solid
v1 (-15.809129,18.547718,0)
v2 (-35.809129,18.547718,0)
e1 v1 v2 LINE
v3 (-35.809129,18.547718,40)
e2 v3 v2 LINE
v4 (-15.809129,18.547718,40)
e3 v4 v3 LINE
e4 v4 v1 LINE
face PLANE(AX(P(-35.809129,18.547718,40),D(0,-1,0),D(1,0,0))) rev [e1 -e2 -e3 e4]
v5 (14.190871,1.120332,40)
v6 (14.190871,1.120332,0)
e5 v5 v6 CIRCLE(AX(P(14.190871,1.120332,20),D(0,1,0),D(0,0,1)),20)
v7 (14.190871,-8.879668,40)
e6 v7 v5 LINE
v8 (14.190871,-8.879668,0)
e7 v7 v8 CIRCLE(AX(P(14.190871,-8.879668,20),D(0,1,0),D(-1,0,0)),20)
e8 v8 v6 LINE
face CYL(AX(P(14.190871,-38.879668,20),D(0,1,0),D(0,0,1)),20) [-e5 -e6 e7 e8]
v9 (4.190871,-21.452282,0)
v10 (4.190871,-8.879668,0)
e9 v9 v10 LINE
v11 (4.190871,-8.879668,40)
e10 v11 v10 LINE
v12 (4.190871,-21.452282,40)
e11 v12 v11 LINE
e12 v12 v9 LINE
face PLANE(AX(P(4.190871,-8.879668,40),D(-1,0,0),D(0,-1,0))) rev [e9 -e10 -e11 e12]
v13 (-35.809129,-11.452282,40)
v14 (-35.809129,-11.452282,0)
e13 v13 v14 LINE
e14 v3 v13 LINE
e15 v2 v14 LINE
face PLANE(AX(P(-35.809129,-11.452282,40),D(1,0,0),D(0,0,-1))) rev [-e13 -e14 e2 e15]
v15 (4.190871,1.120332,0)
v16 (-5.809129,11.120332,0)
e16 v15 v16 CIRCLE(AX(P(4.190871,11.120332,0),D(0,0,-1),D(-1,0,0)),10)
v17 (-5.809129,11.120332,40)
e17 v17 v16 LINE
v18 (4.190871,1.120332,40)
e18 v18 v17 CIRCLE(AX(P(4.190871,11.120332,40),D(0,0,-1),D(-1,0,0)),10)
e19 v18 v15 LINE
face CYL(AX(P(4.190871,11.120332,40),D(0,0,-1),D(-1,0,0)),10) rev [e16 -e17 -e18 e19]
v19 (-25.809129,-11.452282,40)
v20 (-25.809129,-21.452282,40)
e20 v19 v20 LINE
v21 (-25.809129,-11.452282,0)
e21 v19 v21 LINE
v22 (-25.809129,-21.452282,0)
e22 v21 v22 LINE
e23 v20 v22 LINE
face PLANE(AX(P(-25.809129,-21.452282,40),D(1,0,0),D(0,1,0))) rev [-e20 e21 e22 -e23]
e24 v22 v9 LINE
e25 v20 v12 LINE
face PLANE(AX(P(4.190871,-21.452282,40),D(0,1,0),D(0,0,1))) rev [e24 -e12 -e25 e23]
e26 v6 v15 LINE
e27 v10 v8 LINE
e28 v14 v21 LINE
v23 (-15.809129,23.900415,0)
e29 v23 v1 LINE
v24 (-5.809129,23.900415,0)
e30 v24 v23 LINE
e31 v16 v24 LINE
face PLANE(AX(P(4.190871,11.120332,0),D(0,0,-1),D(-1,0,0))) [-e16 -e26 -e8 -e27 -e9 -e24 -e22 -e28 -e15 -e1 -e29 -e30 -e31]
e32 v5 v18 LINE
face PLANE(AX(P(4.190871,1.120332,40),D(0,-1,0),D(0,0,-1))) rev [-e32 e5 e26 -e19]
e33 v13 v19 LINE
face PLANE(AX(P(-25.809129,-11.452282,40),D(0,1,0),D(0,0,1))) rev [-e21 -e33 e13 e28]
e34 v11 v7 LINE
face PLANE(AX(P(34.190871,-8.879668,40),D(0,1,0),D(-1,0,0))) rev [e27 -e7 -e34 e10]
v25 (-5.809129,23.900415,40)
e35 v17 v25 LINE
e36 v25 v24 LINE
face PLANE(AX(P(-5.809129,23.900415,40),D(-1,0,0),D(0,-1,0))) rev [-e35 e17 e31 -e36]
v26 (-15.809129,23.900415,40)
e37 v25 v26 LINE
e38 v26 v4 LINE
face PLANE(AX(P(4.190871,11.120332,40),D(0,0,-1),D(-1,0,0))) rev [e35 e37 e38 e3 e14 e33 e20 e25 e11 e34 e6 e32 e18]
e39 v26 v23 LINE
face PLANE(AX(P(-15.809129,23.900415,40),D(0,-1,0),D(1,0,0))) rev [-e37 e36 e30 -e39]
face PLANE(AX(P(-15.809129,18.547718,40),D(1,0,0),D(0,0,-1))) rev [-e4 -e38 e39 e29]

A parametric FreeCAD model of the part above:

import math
import FreeCAD as App
import Part
import Sketcher

V = App.Vector


def add_polygon(sketch, points):
    """Adds a closed chain of lines whose ends are joined by coincident constraints."""
    first, n = sketch.GeometryCount, len(points)
    for a, b in zip(points, points[1:] + points[:1]):
        sketch.addGeometry(Part.LineSegment(App.Vector(*a, 0), App.Vector(*b, 0)), False)
    for i in range(n):
        sketch.addConstraint(Sketcher.Constraint("Coincident", first + i, 2, first + (i + 1) % n, 1))

doc = App.newDocument("Part")
body = doc.addObject("PartDesign::Body", "Body")

# Sketch on XY plane
sketch1 = body.newObject("Sketcher::SketchObject", "Sketch")
sketch1.AttachmentSupport = (doc.getObject("XY_Plane"), [""])
sketch1.MapMode = "FlatFace"
sketch1.addGeometry([
    Part.LineSegment(V(-6, 24, 0), V(-16, 24, 0)),  # 0
    Part.LineSegment(V(-16, 24, 0), V(-16, 19, 0)),  # 1
    Part.LineSegment(V(-16, 19, 0), V(-36, 19, 0)),  # 2
    Part.LineSegment(V(-36, 19, 0), V(-36, -11, 0)),  # 3
    Part.LineSegment(V(-36, -11, 0), V(-26, -11, 0)),  # 4
    Part.LineSegment(V(-26, -11, 0), V(-26, -21, 0)),  # 5
    Part.LineSegment(V(-26, -21, 0), V(4, -21, 0)),  # 6
    Part.LineSegment(V(4, -21, 0), V(4, -9, 0)),  # 7
    Part.LineSegment(V(4, -9, 0), V(34, -9, 0)),  # 8
    Part.LineSegment(V(34, -9, 0), V(34, 1, 0)),  # 9
    Part.LineSegment(V(34, 1, 0), V(4, 1, 0)),  # 10
    Part.ArcOfCircle(Part.Circle(V(4, 11, 0), V(0, 0, 1), 10), math.radians(180), math.radians(270)),  # 11
    Part.LineSegment(V(-6, 11, 0), V(-6, 24, 0)),  # 12
], False)
sketch1.addConstraint([
    Sketcher.Constraint("Coincident", 0, 2, 1, 1),
    Sketcher.Constraint("Coincident", 1, 2, 2, 1),
    Sketcher.Constraint("Coincident", 2, 2, 3, 1),
    Sketcher.Constraint("Coincident", 3, 2, 4, 1),
    Sketcher.Constraint("Coincident", 4, 2, 5, 1),
    Sketcher.Constraint("Coincident", 5, 2, 6, 1),
    Sketcher.Constraint("Coincident", 6, 2, 7, 1),
    Sketcher.Constraint("Coincident", 7, 2, 8, 1),
    Sketcher.Constraint("Coincident", 8, 2, 9, 1),
    Sketcher.Constraint("Coincident", 9, 2, 10, 1),
    Sketcher.Constraint("Tangent", 10, 2, 11, 2),
    Sketcher.Constraint("Tangent", 11, 1, 12, 1),
    Sketcher.Constraint("Coincident", 12, 2, 0, 1),
    Sketcher.Constraint("Horizontal", 0),
    Sketcher.Constraint("Vertical", 1),
    Sketcher.Constraint("Horizontal", 2),
    Sketcher.Constraint("Vertical", 3),
    Sketcher.Constraint("Horizontal", 4),
    Sketcher.Constraint("Vertical", 5),
    Sketcher.Constraint("Horizontal", 6),
    Sketcher.Constraint("Vertical", 7),
    Sketcher.Constraint("Horizontal", 8),
    Sketcher.Constraint("Vertical", 9),
    Sketcher.Constraint("Horizontal", 10),
    Sketcher.Constraint("Vertical", 12),
    Sketcher.Constraint("Vertical", 11, 3, 6, 2),
    Sketcher.Constraint("Equal", 0, 4),
    Sketcher.Constraint("Equal", 6, 8),
    Sketcher.Constraint("Equal", 10, 3),
    Sketcher.Constraint("Equal", 4, 5),
    Sketcher.Constraint("Equal", 5, 9),
    Sketcher.Constraint("Radius", 11, 10.0),
    Sketcher.Constraint("DistanceX", 0, 2, 0, 1, 10.0),
    Sketcher.Constraint("DistanceX", 2, 2, 2, 1, 20.0),
    Sketcher.Constraint("DistanceY", 1, 2, 1, 1, 5.352697),
    Sketcher.Constraint("DistanceY", 7, 1, 7, 2, 12.572614),
    Sketcher.Constraint("DistanceX", -1, 1, 11, 3, 4.190871),
    Sketcher.Constraint("DistanceY", -1, 1, 11, 3, 11.120332),
])
pad1 = body.newObject("PartDesign::Pad", "Pad")
pad1.Profile = sketch1
pad1.Length = 40

# Sketch on XZ plane
sketch2 = body.newObject("Sketcher::SketchObject", "Sketch001")
sketch2.AttachmentSupport = (doc.getObject("XZ_Plane"), [""])
sketch2.MapMode = "FlatFace"
sketch2.AttachmentOffset = App.Placement(V(0, 0, -1.120332), App.Rotation())
add_polygon(sketch2, [(-46, -10), (-46, 50), (44, 50), (44, -10)])  # lines 0-3
sketch2.addGeometry(Part.LineSegment(V(-36, 0, 0), V(14, 0, 0)), False)  # 4
sketch2.addGeometry(Part.ArcOfCircle(Part.Circle(V(14, 20, 0), V(0, 0, 1), 20), math.radians(-90), math.radians(90)), False)  # 5
sketch2.addGeometry(Part.LineSegment(V(14, 40, 0), V(-36, 40, 0)), False)  # 6
sketch2.addGeometry(Part.LineSegment(V(-36, 40, 0), V(-36, 0, 0)), False)  # 7
sketch2.addConstraint([
    Sketcher.Constraint("Tangent", 4, 2, 5, 1),
    Sketcher.Constraint("Tangent", 5, 2, 6, 1),
    Sketcher.Constraint("Coincident", 6, 2, 7, 1),
    Sketcher.Constraint("Coincident", 7, 2, 4, 1),
    Sketcher.Constraint("Vertical", 0),
    Sketcher.Constraint("Horizontal", 1),
    Sketcher.Constraint("Vertical", 2),
    Sketcher.Constraint("Horizontal", 3),
    Sketcher.Constraint("Horizontal", 4),
    Sketcher.Constraint("Horizontal", 6),
    Sketcher.Constraint("Vertical", 7),
    Sketcher.Constraint("PointOnObject", 4, 2, -1),
    Sketcher.Constraint("Radius", 5, 20.0),
    Sketcher.Constraint("DistanceX", 4, 1, 4, 2, 50.0),
    Sketcher.Constraint("DistanceX", 1, 1, 1, 2, 90.5),
    Sketcher.Constraint("DistanceY", 0, 1, 0, 2, 60.5),
    Sketcher.Constraint("DistanceY", -1, 1, 0, 2, 50.25),
    Sketcher.Constraint("DistanceX", 0, 2, -1, 1, 46.059),
    Sketcher.Constraint("DistanceX", -1, 1, 5, 3, 14.190871),
])
pocket1 = body.newObject("PartDesign::Pocket", "Pocket")
pocket1.Profile = sketch2
pocket1.Length = 40
pocket1.Reversed = True

doc.recompute()
